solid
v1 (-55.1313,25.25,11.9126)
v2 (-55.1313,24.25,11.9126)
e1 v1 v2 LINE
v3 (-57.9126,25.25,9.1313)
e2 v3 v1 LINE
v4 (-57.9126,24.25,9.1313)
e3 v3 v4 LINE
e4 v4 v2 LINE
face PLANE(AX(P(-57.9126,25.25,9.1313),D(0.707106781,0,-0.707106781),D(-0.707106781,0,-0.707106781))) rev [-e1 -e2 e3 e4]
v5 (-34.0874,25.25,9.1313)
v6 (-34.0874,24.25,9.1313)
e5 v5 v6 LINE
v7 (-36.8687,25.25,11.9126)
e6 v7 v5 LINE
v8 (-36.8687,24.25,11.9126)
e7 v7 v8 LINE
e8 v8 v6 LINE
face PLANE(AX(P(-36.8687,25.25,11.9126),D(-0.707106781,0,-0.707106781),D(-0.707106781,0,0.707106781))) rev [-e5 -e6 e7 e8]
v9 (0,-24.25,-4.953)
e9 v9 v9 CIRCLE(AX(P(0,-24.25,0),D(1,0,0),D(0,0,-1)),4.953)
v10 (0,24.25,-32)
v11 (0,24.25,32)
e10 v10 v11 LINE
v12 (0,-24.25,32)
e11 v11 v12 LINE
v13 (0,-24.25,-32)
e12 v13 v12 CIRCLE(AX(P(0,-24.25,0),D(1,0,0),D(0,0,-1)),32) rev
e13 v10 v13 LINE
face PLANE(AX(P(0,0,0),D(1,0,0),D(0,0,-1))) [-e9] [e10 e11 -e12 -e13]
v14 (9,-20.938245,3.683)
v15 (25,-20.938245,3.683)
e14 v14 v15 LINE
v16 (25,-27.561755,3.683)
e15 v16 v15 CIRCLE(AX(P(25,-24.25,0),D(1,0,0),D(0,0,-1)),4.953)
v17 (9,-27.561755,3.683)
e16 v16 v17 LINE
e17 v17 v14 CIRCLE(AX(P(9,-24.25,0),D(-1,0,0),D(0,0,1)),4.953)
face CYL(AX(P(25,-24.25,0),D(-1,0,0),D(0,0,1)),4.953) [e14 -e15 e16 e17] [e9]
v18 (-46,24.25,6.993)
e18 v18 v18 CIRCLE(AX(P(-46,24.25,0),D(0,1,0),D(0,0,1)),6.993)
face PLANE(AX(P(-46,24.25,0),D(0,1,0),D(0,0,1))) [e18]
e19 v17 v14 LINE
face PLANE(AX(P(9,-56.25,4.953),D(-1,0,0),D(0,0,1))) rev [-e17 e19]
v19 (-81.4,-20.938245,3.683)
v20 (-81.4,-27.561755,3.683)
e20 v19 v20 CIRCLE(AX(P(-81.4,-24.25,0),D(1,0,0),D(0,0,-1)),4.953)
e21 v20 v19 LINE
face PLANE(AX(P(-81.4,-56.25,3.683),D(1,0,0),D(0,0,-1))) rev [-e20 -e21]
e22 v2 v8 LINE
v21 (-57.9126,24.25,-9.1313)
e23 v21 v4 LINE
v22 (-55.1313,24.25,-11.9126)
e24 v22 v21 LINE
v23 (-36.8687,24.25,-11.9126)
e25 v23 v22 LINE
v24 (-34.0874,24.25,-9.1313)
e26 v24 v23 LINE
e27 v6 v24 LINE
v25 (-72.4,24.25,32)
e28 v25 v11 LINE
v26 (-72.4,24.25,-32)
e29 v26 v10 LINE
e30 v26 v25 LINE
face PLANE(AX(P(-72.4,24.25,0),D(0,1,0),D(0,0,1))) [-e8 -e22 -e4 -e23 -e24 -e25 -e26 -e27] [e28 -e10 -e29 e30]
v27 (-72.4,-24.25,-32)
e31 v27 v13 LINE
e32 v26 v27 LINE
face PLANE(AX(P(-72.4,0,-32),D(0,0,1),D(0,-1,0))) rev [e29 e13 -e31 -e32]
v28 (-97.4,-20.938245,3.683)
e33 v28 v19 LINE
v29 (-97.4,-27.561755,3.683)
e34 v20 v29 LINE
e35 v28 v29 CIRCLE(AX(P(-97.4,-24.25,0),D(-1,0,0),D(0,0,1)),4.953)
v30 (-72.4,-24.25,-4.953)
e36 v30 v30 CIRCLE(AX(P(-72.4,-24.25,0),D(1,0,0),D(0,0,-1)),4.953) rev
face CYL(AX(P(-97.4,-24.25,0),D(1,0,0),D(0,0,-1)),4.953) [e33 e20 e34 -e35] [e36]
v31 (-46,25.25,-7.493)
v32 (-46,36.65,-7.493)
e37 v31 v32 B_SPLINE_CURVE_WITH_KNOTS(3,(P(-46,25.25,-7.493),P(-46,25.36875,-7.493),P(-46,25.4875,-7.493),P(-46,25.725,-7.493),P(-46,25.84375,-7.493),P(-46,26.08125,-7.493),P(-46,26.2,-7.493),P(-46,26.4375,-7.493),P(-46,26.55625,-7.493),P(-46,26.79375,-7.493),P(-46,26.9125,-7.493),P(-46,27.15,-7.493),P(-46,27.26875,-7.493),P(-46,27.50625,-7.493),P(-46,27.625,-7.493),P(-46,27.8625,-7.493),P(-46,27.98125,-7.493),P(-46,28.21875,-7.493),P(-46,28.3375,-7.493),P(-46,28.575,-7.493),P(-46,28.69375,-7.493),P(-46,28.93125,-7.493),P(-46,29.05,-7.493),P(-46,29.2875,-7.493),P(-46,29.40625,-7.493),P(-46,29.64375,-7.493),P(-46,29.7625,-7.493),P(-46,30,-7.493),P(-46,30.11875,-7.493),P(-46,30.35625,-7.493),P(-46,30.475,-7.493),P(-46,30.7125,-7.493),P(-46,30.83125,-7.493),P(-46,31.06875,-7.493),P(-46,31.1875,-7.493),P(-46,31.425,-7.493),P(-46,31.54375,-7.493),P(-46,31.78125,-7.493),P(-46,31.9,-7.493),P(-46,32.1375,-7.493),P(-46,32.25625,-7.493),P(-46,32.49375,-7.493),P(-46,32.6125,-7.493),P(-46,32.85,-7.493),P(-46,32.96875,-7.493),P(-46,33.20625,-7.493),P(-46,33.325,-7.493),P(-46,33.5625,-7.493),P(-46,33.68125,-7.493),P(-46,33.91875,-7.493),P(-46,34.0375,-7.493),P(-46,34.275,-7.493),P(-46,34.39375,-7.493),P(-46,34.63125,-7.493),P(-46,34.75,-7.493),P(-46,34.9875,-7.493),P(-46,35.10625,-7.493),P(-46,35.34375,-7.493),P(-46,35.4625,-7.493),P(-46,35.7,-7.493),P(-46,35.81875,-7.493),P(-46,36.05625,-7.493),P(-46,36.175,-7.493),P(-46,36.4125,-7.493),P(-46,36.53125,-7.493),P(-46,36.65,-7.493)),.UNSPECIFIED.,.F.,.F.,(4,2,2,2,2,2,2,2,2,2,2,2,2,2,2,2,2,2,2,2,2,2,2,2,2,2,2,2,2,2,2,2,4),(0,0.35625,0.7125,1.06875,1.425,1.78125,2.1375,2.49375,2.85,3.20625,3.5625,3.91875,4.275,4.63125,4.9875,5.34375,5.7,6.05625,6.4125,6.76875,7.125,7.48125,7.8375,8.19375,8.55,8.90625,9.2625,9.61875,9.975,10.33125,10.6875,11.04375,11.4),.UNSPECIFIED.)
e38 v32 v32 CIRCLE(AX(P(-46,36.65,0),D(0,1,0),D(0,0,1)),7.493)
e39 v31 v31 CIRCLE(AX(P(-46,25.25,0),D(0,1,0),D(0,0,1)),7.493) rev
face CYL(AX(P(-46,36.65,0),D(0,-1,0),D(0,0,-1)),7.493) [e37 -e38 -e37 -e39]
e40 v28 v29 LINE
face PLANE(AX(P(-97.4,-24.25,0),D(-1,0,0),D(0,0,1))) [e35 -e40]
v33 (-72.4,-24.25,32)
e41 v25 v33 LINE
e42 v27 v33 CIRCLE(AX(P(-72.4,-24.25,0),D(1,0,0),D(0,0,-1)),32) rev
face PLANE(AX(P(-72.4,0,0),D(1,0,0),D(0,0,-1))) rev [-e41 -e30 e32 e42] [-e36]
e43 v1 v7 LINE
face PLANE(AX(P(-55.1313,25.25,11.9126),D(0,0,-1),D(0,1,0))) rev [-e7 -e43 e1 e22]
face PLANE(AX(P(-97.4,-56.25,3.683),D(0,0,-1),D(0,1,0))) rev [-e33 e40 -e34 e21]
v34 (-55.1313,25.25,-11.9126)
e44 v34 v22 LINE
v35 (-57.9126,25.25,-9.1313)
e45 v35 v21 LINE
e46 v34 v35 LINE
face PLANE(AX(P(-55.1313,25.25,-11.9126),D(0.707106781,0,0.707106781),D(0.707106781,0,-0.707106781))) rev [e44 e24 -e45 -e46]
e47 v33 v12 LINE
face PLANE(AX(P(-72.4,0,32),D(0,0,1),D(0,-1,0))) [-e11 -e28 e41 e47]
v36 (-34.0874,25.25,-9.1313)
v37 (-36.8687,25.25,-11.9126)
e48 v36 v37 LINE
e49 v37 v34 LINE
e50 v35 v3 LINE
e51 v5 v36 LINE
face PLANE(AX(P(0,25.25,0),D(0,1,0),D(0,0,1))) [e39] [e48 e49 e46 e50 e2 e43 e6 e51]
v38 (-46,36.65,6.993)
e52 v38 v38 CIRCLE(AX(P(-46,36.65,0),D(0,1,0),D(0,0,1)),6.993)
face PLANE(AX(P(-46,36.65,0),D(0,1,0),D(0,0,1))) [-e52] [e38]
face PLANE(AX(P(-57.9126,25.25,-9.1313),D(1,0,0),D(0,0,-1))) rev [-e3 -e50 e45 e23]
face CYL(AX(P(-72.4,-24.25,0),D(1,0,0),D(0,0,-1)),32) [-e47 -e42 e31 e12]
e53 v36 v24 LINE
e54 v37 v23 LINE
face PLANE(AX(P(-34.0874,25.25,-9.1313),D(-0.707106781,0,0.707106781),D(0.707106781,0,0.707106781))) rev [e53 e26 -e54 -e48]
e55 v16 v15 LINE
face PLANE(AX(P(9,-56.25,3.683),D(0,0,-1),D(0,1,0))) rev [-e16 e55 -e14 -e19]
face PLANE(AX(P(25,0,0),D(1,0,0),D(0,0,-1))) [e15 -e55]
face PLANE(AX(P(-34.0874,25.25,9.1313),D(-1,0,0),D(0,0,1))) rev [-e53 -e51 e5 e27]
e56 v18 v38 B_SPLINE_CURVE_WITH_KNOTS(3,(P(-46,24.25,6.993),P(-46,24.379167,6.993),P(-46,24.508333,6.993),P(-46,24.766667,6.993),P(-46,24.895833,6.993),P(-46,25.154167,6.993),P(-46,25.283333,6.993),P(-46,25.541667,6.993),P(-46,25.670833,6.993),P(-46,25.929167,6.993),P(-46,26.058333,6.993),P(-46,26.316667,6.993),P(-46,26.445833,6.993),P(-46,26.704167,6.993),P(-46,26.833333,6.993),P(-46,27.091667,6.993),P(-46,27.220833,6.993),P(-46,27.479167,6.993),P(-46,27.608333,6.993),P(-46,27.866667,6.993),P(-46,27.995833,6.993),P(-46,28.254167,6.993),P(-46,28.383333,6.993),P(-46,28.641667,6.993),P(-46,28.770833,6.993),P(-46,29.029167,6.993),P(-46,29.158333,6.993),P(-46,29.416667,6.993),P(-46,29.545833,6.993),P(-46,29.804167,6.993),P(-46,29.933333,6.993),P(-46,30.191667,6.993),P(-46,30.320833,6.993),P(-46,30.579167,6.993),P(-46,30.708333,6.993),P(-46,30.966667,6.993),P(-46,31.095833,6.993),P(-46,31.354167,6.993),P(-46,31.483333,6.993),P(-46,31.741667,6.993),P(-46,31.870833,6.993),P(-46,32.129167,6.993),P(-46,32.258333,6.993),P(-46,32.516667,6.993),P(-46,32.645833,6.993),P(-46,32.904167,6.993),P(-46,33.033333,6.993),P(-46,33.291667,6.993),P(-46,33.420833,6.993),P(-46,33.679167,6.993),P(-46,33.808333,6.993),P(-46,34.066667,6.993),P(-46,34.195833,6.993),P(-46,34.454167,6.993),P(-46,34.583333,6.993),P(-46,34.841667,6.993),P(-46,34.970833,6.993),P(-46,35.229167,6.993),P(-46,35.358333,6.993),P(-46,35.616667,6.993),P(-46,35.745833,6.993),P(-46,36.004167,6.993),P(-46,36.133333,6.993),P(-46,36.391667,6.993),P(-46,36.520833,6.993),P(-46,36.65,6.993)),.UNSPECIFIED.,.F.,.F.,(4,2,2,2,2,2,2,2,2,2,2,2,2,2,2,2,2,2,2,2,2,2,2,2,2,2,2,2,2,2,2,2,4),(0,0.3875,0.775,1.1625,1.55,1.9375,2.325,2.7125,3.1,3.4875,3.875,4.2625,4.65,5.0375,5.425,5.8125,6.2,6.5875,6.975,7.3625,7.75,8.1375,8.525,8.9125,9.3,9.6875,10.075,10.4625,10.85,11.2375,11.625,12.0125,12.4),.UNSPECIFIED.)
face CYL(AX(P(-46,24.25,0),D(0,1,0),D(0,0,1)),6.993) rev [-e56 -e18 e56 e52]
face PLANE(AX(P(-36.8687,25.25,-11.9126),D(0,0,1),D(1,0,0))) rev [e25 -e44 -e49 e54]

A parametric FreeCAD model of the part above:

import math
import FreeCAD as App
import Part
import Sketcher
Q = App.Units.Quantity


def add_polygon(sketch, points):
    """Adds a closed chain of lines whose ends are joined by coincident constraints."""
    first, n = sketch.GeometryCount, len(points)
    for a, b in zip(points, points[1:] + points[:1]):
        sketch.addGeometry(Part.LineSegment(App.Vector(*a, 0), App.Vector(*b, 0)), False)
    for i in range(n):
        sketch.addConstraint(Sketcher.Constraint("Coincident", first + i, 2, first + (i + 1) % n, 1))

doc = App.newDocument("Part")
body = doc.addObject("PartDesign::Body", "Body")

# Sketch on YZ plane
sketch1 = body.newObject("Sketcher::SketchObject", "Sketch")
sketch1.AttachmentSupport = (doc.getObject("YZ_Plane"), [""])
sketch1.MapMode = "FlatFace"
sketch1.addGeometry(Part.LineSegment(App.Vector(24, 32, 0), App.Vector(-24, 32, 0)), False)
sketch1.addGeometry(Part.ArcOfCircle(Part.Circle(App.Vector(-24, 0, 0), App.Vector(0, 0, 1), 32), math.radians(90), math.radians(270)), False)
sketch1.addGeometry(Part.LineSegment(App.Vector(-24, -32, 0), App.Vector(24, -32, 0)), False)
sketch1.addGeometry(Part.LineSegment(App.Vector(24, -32, 0), App.Vector(24, 32, 0)), False)
sketch1.addConstraint(Sketcher.Constraint("Tangent", 0, 2, 1, 1))
sketch1.addConstraint(Sketcher.Constraint("Tangent", 1, 2, 2, 1))
sketch1.addConstraint(Sketcher.Constraint("Coincident", 2, 2, 3, 1))
sketch1.addConstraint(Sketcher.Constraint("Coincident", 3, 2, 0, 1))
sketch1.addConstraint(Sketcher.Constraint("Horizontal", 0))
sketch1.addConstraint(Sketcher.Constraint("Horizontal", 2))
sketch1.addConstraint(Sketcher.Constraint("Vertical", 3))
sketch1.addConstraint(Sketcher.Constraint("Symmetric", 0, 2, 2, 2, -1, 1))
sketch1.addConstraint(Sketcher.Constraint("Radius", 1, Q("32 mm")))
sketch1.addConstraint(Sketcher.Constraint("DistanceX", 0, 2, 0, 1, Q("48.5 mm")))
pad1 = body.newObject("PartDesign::Pad", "Pad")
pad1.Profile = sketch1
pad1.Length = 72.4
pad1.Reversed = True

# Sketch on XZ plane
sketch2 = body.newObject("Sketcher::SketchObject", "Sketch001")
sketch2.AttachmentSupport = (doc.getObject("XZ_Plane"), [""])
sketch2.MapMode = "FlatFace"
sketch2.AttachmentOffset = App.Placement(App.Vector(0, 0, -24.25), App.Rotation())
add_polygon(sketch2, [(-57.9, 9.1), (-55.1, 11.9), (-36.9, 11.9), (-34.1, 9.1), (-34.1, -9.1), (-36.9, -11.9), (-55.1, -11.9), (-57.9, -9.1)])  # lines 0-7
sketch2.addConstraint(Sketcher.Constraint("Horizontal", 1))
sketch2.addConstraint(Sketcher.Constraint("Vertical", 3))
sketch2.addConstraint(Sketcher.Constraint("Horizontal", 5))
sketch2.addConstraint(Sketcher.Constraint("Vertical", 7))
sketch2.addConstraint(Sketcher.Constraint("Symmetric", 1, 2, 4, 2, -1))
sketch2.addConstraint(Sketcher.Constraint("Perpendicular", 0, 2))
sketch2.addConstraint(Sketcher.Constraint("Perpendicular", 2, 4))
sketch2.addConstraint(Sketcher.Constraint("Perpendicular", 4, 6))
sketch2.addConstraint(Sketcher.Constraint("Horizontal", 3, 2, 6, 2))
sketch2.addConstraint(Sketcher.Constraint("Horizontal", 2, 2, 7, 2))
sketch2.addConstraint(Sketcher.Constraint("Vertical", 0, 2, 5, 2))
sketch2.addConstraint(Sketcher.Constraint("Equal", 5, 3))
sketch2.addConstraint(Sketcher.Constraint("DistanceX", 1, 1, 1, 2, Q("18.2626 mm")))
sketch2.addConstraint(Sketcher.Constraint("DistanceX", 0, 2, -1, 1, Q("55.1313 mm")))
sketch2.addConstraint(Sketcher.Constraint("DistanceY", -1, 1, 0, 2, Q("11.9126 mm")))
pad2 = body.newObject("PartDesign::Pad", "Pad001")
pad2.Profile = sketch2
pad2.Length = 1
pad2.Reversed = True

# Sketch on XZ plane
sketch3 = body.newObject("Sketcher::SketchObject", "Sketch002")
sketch3.AttachmentSupport = (doc.getObject("XZ_Plane"), [""])
sketch3.MapMode = "FlatFace"
sketch3.AttachmentOffset = App.Placement(App.Vector(0, 0, -24.25), App.Rotation())
sketch3.addGeometry(Part.Circle(App.Vector(-46, 0, 0), App.Vector(0, 0, 1), 7), False)
sketch3.addConstraint(Sketcher.Constraint("PointOnObject", 0, 3, -1))
sketch3.addConstraint(Sketcher.Constraint("Diameter", 0, Q("14.986 mm")))
sketch3.addConstraint(Sketcher.Constraint("DistanceX", 0, 3, -1, 1, Q("46 mm")))
pad3 = body.newObject("PartDesign::Pad", "Pad002")
pad3.Profile = sketch3
pad3.Length = 12.4
pad3.Reversed = True

# Sketch on XZ plane
sketch4 = body.newObject("Sketcher::SketchObject", "Sketch003")
sketch4.AttachmentSupport = (doc.getObject("XZ_Plane"), [""])
sketch4.MapMode = "FlatFace"
sketch4.AttachmentOffset = App.Placement(App.Vector(0, 0, -36.65), App.Rotation())
sketch4.addGeometry(Part.Circle(App.Vector(-46, 0, 0), App.Vector(0, 0, 1), 7), False)
sketch4.addConstraint(Sketcher.Constraint("PointOnObject", 0, 3, -1))
sketch4.addConstraint(Sketcher.Constraint("Diameter", 0, Q("13.986 mm")))
sketch4.addConstraint(Sketcher.Constraint("DistanceX", 0, 3, -1, 1, Q("46 mm")))
pocket1 = body.newObject("PartDesign::Pocket", "Pocket")
pocket1.Profile = sketch4
pocket1.Length = 12.4
pocket1.Reversed = True

# Sketch on YZ plane
sketch5 = body.newObject("Sketcher::SketchObject", "Sketch004")
sketch5.AttachmentSupport = (doc.getObject("YZ_Plane"), [""])
sketch5.MapMode = "FlatFace"
sketch5.addGeometry(Part.Circle(App.Vector(-24.2, 0, 0), App.Vector(0, 0, 1), 5), False)
sketch5.addConstraint(Sketcher.Constraint("PointOnObject", 0, 3, -1))
sketch5.addConstraint(Sketcher.Constraint("Diameter", 0, Q("9.906 mm")))
sketch5.addConstraint(Sketcher.Constraint("DistanceX", 0, 3, -1, 1, Q("24.25 mm")))
pad4 = body.newObject("PartDesign::Pad", "Pad003")
pad4.Profile = sketch5
pad4.Length = 25

# Sketch on YZ plane
sketch6 = body.newObject("Sketcher::SketchObject", "Sketch005")
sketch6.AttachmentSupport = (doc.getObject("YZ_Plane"), [""])
sketch6.MapMode = "FlatFace"
sketch6.AttachmentOffset = App.Placement(App.Vector(0, 0, -97.4), App.Rotation())
sketch6.addGeometry(Part.Circle(App.Vector(-24.2, 0, 0), App.Vector(0, 0, 1), 5), False)
sketch6.addConstraint(Sketcher.Constraint("PointOnObject", 0, 3, -1))
sketch6.addConstraint(Sketcher.Constraint("Diameter", 0, Q("9.906 mm")))
sketch6.addConstraint(Sketcher.Constraint("DistanceX", 0, 3, -1, 1, Q("24.25 mm")))
pad5 = body.newObject("PartDesign::Pad", "Pad004")
pad5.Profile = sketch6
pad5.Length = 25

# Sketch on XZ plane
sketch7 = body.newObject("Sketcher::SketchObject", "Sketch006")
sketch7.AttachmentSupport = (doc.getObject("XZ_Plane"), [""])
sketch7.MapMode = "FlatFace"
sketch7.AttachmentOffset = App.Placement(App.Vector(0, 0, 24.25), App.Rotation())
add_polygon(sketch7, [(9, 3.7), (9, 5), (25, 5), (25, 3.7)])  # lines 0-3
add_polygon(sketch7, [(-97.4, 3.7), (-97.4, 5), (-81.4, 5), (-81.4, 3.7)])  # lines 4-7
sketch7.addConstraint(Sketcher.Constraint("Vertical", 0))
sketch7.addConstraint(Sketcher.Constraint("Horizontal", 1))
sketch7.addConstraint(Sketcher.Constraint("Vertical", 2))
sketch7.addConstraint(Sketcher.Constraint("Horizontal", 3))
sketch7.addConstraint(Sketcher.Constraint("Vertical", 4))
sketch7.addConstraint(Sketcher.Constraint("Horizontal", 5))
sketch7.addConstraint(Sketcher.Constraint("Vertical", 6))
sketch7.addConstraint(Sketcher.Constraint("Horizontal", 7))
sketch7.addConstraint(Sketcher.Constraint("Horizontal", 1, 2, 4, 2))
sketch7.addConstraint(Sketcher.Constraint("Horizontal", 3, 2, 6, 2))
sketch7.addConstraint(Sketcher.Constraint("Equal", 3, 5))
sketch7.addConstraint(Sketcher.Constraint("DistanceX", 1, 1, 1, 2, Q("16 mm")))
sketch7.addConstraint(Sketcher.Constraint("DistanceX", -1, 1, 0, 2, Q("9 mm")))
sketch7.addConstraint(Sketcher.Constraint("DistanceY", 0, 1, 0, 2, Q("1.27 mm")))
sketch7.addConstraint(Sketcher.Constraint("DistanceX", 4, 2, -1, 1, Q("97.4 mm")))
sketch7.addConstraint(Sketcher.Constraint("DistanceY", -1, 1, 0, 2, Q("4.953 mm")))
pocket2 = body.newObject("PartDesign::Pocket", "Pocket001")
pocket2.Profile = sketch7
pocket2.Type = "ThroughAll"
pocket2.Midplane = True

doc.recompute()
